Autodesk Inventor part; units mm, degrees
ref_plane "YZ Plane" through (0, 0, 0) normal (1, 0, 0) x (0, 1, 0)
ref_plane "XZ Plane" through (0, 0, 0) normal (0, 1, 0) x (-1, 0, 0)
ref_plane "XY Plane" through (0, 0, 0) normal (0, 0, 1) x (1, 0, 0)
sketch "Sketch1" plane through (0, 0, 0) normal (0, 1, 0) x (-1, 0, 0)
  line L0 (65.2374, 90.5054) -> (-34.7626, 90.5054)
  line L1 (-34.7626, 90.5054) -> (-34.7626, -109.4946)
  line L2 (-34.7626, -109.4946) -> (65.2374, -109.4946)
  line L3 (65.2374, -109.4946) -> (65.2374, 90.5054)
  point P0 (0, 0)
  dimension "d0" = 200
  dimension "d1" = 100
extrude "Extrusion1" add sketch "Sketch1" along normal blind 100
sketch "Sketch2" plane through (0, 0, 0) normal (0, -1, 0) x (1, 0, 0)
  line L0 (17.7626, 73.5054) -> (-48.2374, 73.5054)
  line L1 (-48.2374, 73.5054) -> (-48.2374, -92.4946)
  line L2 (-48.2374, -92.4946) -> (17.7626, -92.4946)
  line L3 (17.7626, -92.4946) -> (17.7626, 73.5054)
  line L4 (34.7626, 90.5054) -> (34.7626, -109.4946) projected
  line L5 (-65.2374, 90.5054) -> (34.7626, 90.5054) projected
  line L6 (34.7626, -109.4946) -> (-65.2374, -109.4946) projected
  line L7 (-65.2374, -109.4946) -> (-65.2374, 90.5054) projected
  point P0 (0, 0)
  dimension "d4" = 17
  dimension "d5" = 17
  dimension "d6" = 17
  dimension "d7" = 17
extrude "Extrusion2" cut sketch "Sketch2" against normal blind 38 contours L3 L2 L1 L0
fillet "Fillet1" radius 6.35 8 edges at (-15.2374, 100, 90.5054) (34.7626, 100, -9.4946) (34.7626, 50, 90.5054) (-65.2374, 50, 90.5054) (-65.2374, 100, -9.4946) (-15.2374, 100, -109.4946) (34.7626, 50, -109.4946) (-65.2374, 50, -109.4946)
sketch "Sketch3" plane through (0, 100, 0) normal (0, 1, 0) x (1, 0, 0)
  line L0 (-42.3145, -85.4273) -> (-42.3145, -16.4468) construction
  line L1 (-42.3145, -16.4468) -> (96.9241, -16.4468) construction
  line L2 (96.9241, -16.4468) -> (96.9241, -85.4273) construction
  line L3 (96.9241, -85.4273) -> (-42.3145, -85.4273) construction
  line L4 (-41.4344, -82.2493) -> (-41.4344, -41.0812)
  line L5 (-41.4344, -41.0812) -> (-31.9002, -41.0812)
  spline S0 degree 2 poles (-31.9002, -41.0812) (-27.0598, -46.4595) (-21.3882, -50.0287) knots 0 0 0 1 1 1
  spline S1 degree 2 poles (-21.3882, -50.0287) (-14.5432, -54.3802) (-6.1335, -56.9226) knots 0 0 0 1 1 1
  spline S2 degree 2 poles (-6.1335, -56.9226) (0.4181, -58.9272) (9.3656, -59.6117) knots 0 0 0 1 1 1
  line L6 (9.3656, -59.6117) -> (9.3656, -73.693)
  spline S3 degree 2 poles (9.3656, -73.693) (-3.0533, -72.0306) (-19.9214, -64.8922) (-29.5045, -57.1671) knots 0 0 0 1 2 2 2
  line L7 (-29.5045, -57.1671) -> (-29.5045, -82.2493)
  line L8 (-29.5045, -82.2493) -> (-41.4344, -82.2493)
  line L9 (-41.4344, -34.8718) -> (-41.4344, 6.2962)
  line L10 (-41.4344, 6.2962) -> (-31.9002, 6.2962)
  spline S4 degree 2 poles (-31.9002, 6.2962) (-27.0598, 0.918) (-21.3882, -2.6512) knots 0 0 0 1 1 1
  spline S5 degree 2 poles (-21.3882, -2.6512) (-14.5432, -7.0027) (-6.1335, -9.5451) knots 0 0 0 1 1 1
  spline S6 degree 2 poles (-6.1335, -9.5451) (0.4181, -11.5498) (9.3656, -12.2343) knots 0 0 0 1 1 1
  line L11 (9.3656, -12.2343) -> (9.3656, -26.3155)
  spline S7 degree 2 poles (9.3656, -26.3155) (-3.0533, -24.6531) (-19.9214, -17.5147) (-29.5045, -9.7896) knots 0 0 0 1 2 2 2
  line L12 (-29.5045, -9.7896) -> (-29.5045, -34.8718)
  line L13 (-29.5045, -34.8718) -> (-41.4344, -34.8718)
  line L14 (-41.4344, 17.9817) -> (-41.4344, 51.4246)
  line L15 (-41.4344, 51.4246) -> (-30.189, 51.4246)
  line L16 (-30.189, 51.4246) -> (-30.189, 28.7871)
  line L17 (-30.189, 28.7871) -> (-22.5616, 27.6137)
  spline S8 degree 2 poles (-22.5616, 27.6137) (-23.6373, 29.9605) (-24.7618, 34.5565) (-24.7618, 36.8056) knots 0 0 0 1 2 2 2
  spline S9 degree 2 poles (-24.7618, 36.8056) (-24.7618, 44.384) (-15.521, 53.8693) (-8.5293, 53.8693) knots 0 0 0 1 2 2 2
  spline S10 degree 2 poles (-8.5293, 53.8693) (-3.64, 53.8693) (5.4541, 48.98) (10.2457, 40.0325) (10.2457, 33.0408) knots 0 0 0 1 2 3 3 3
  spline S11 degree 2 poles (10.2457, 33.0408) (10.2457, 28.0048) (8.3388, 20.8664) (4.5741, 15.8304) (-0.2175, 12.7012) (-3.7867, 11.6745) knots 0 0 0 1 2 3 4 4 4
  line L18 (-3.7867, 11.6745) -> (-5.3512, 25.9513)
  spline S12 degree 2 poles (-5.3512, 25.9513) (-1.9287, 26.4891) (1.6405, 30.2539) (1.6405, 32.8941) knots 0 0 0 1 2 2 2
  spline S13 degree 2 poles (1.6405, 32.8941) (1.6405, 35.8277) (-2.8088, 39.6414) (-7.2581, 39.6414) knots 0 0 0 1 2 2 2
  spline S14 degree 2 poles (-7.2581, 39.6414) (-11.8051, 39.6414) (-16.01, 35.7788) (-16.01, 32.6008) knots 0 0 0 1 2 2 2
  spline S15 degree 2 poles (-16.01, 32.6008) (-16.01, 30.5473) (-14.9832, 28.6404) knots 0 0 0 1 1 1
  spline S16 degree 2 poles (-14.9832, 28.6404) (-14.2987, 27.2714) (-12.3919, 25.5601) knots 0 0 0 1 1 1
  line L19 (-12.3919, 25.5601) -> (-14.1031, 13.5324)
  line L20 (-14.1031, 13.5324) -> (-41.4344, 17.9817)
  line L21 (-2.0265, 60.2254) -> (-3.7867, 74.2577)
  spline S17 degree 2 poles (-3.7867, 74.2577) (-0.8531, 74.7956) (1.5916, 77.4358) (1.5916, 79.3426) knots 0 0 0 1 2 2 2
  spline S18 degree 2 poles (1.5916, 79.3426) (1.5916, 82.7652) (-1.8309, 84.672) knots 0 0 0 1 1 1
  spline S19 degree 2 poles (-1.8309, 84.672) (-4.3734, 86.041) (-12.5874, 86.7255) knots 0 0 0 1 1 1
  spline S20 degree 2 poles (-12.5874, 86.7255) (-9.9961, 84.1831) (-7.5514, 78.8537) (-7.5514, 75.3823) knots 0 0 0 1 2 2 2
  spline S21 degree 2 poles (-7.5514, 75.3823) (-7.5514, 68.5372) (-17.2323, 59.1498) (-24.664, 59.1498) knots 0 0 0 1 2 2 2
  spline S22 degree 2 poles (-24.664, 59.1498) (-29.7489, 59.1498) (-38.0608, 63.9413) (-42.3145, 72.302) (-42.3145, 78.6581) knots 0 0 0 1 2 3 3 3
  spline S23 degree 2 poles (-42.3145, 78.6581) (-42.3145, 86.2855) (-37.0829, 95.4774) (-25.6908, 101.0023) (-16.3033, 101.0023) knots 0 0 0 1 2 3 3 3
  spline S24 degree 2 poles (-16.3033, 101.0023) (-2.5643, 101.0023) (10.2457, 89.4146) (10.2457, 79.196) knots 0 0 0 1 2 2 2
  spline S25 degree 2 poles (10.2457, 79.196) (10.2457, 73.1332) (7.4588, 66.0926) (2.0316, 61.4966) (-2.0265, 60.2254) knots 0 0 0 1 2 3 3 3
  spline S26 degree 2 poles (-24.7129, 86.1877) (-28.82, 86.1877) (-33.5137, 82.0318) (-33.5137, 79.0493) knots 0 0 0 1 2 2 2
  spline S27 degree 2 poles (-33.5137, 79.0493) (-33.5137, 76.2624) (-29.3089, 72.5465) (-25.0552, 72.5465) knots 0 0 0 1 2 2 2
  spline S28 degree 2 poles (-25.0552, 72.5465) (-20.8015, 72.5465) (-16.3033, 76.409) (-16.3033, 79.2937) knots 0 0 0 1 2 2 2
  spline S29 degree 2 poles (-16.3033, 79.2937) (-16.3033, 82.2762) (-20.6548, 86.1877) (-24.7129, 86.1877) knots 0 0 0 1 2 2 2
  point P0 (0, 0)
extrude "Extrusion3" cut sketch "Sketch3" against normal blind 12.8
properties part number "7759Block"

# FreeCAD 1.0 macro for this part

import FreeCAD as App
import Part
import Sketcher
from FreeCAD import Vector
Q = App.Units.Quantity


def edges_at(feature, points):
    """Names of the edges that pass closest to the given points."""
    edges = feature.Shape.Edges
    near = lambda p: min(range(len(edges)), key=lambda i: edges[i].distToShape(Part.Vertex(*p))[0])
    return sorted({f"Edge{near(p) + 1}" for p in points})


def add_polygon(sketch, points):
    """Adds a closed chain of lines whose ends are joined by coincident constraints."""
    first, n = sketch.GeometryCount, len(points)
    for a, b in zip(points, points[1:] + points[:1]):
        sketch.addGeometry(Part.LineSegment(App.Vector(*a, 0), App.Vector(*b, 0)), False)
    for i in range(n):
        sketch.addConstraint(Sketcher.Constraint("Coincident", first + i, 2, first + (i + 1) % n, 1))

doc = App.newDocument("Part")
body = doc.addObject("PartDesign::Body", "Body")

sketch1 = doc.addObject("Sketcher::SketchObject", "Sketch")
body.addObject(sketch1)
sketch1.AttachmentSupport = (doc.XZ_Plane, [""])
sketch1.MapMode = "FlatFace"
add_polygon(sketch1, [(-65.2374, -109.4946), (-65.2374, 90.5054), (34.7626, 90.5054), (34.7626, -109.4946)])
sketch1.addConstraint(Sketcher.Constraint("Vertical", 0))
sketch1.addConstraint(Sketcher.Constraint("Horizontal", 1))
sketch1.addConstraint(Sketcher.Constraint("Vertical", 2))
sketch1.addConstraint(Sketcher.Constraint("Horizontal", 3))
sketch1.addConstraint(Sketcher.Constraint("DistanceX", 1, 1, 1, 2, Q("100 mm")))
sketch1.addConstraint(Sketcher.Constraint("DistanceY", 0, 1, 0, 2, Q("200 mm")))
sketch1.addConstraint(Sketcher.Constraint("DistanceX", 0, 2, -1, 1, Q("65.2374 mm")))
sketch1.addConstraint(Sketcher.Constraint("DistanceY", -1, 1, 0, 2, Q("90.5054 mm")))
pad1 = doc.addObject("PartDesign::Pad", "Pad")
body.addObject(pad1)
pad1.Profile = sketch1
pad1.Length = 100
pad1.Reversed = True

sketch2 = doc.addObject("Sketcher::SketchObject", "Sketch001")
body.addObject(sketch2)
sketch2.AttachmentSupport = (doc.XZ_Plane, [""])
sketch2.MapMode = "FlatFace"
add_polygon(sketch2, [(17.7626, -92.4946), (17.7626, 73.5054), (-48.2374, 73.5054), (-48.2374, -92.4946)])
sketch2.addConstraint(Sketcher.Constraint("Vertical", 0))
sketch2.addConstraint(Sketcher.Constraint("Horizontal", 1))
sketch2.addConstraint(Sketcher.Constraint("Vertical", 2))
sketch2.addConstraint(Sketcher.Constraint("Horizontal", 3))
sketch2.addConstraint(Sketcher.Constraint("DistanceX", 1, 2, 1, 1, Q("66 mm")))
sketch2.addConstraint(Sketcher.Constraint("DistanceY", 0, 1, 0, 2, Q("166 mm")))
sketch2.addConstraint(Sketcher.Constraint("DistanceX", -1, 1, 0, 2, Q("17.7626 mm")))
sketch2.addConstraint(Sketcher.Constraint("DistanceY", -1, 1, 0, 2, Q("73.5054 mm")))
pocket1 = doc.addObject("PartDesign::Pocket", "Pocket")
body.addObject(pocket1)
pocket1.Profile = sketch2
pocket1.Length = 38
doc.recompute()

fillet = doc.addObject("PartDesign::Fillet", "Fillet")
body.addObject(fillet)
fillet.Base = (pocket1, edges_at(pocket1, [
    (-15.237, 100, 90.505),
    (34.763, 100, -9.495),
    (34.763, 50, 90.505),
    (-65.237, 50, 90.505),
    (-65.237, 100, -9.495),
    (-15.237, 100, -109.495),
    (34.763, 50, -109.495),
    (-65.237, 50, -109.495),
]))
fillet.Radius = 6.35

sketch3 = doc.addObject("Sketcher::SketchObject", "Sketch002")
body.addObject(sketch3)
sketch3.AttachmentSupport = (doc.XZ_Plane, [""])
sketch3.MapMode = "FlatFace"
sketch3.AttachmentOffset = App.Placement(Vector(0, 0, -100), App.Rotation())
sketch3.addGeometry(Part.LineSegment(Vector(-41.4344, 41.0812, 0), Vector(-41.4344, 82.2493, 0)), False)
sketch3.addGeometry(Part.LineSegment(Vector(-41.4344, 82.2493, 0), Vector(-29.5045, 82.2493, 0)), False)
sketch3.addGeometry(Part.LineSegment(Vector(-29.5045, 82.2493, 0), Vector(-29.5045, 57.1671, 0)), False)
sketch3.addGeometry(Part.BSplineCurve([Vector(9.3656, 73.693, 0), Vector(-3.0533, 72.0306, 0), Vector(-19.9214, 64.8922, 0), Vector(-29.5045, 57.1671, 0)], [3, 1, 3], [0, 1, 2], False, 2, [1, 1, 1, 1], False), False)
sketch3.addGeometry(Part.LineSegment(Vector(9.3656, 73.693, 0), Vector(9.3656, 59.6117, 0)), False)
sketch3.addGeometry(Part.BSplineCurve([Vector(-6.1335, 56.9226, 0), Vector(0.4181, 58.9272, 0), Vector(9.3656, 59.6117, 0)], [3, 3], [0, 1], False, 2, [1, 1, 1], False), False)
sketch3.addGeometry(Part.BSplineCurve([Vector(-21.3882, 50.0287, 0), Vector(-14.5432, 54.3802, 0), Vector(-6.1335, 56.9226, 0)], [3, 3], [0, 1], False, 2, [1, 1, 1], False), False)
sketch3.addGeometry(Part.BSplineCurve([Vector(-31.9002, 41.0812, 0), Vector(-27.0598, 46.4595, 0), Vector(-21.3882, 50.0287, 0)], [3, 3], [0, 1], False, 2, [1, 1, 1], False), False)
sketch3.addGeometry(Part.LineSegment(Vector(-31.9002, 41.0812, 0), Vector(-41.4344, 41.0812, 0)), False)
sketch3.addGeometry(Part.LineSegment(Vector(-41.4344, -6.2962, 0), Vector(-41.4344, 34.8718, 0)), False)
sketch3.addGeometry(Part.LineSegment(Vector(-41.4344, 34.8718, 0), Vector(-29.5045, 34.8718, 0)), False)
sketch3.addGeometry(Part.LineSegment(Vector(-29.5045, 34.8718, 0), Vector(-29.5045, 9.7896, 0)), False)
sketch3.addGeometry(Part.BSplineCurve([Vector(9.3656, 26.3155, 0), Vector(-3.0533, 24.6531, 0), Vector(-19.9214, 17.5147, 0), Vector(-29.5045, 9.7896, 0)], [3, 1, 3], [0, 1, 2], False, 2, [1, 1, 1, 1], False), False)
sketch3.addGeometry(Part.LineSegment(Vector(9.3656, 26.3155, 0), Vector(9.3656, 12.2343, 0)), False)
sketch3.addGeometry(Part.BSplineCurve([Vector(-6.1335, 9.5451, 0), Vector(0.4181, 11.5498, 0), Vector(9.3656, 12.2343, 0)], [3, 3], [0, 1], False, 2, [1, 1, 1], False), False)
sketch3.addGeometry(Part.BSplineCurve([Vector(-21.3882, 2.6512, 0), Vector(-14.5432, 7.0027, 0), Vector(-6.1335, 9.5451, 0)], [3, 3], [0, 1], False, 2, [1, 1, 1], False), False)
sketch3.addGeometry(Part.BSplineCurve([Vector(-31.9002, -6.2962, 0), Vector(-27.0598, -0.918, 0), Vector(-21.3882, 2.6512, 0)], [3, 3], [0, 1], False, 2, [1, 1, 1], False), False)
sketch3.addGeometry(Part.LineSegment(Vector(-31.9002, -6.2962, 0), Vector(-41.4344, -6.2962, 0)), False)
sketch3.addGeometry(Part.LineSegment(Vector(-41.4344, -51.4246, 0), Vector(-41.4344, -17.9817, 0)), False)
sketch3.addGeometry(Part.LineSegment(Vector(-41.4344, -17.9817, 0), Vector(-14.1031, -13.5324, 0)), False)
sketch3.addGeometry(Part.LineSegment(Vector(-14.1031, -13.5324, 0), Vector(-12.3919, -25.5601, 0)), False)
sketch3.addGeometry(Part.BSplineCurve([Vector(-14.9832, -28.6404, 0), Vector(-14.2987, -27.2714, 0), Vector(-12.3919, -25.5601, 0)], [3, 3], [0, 1], False, 2, [1, 1, 1], False), False)
sketch3.addGeometry(Part.BSplineCurve([Vector(-16.01, -32.6008, 0), Vector(-16.01, -30.5473, 0), Vector(-14.9832, -28.6404, 0)], [3, 3], [0, 1], False, 2, [1, 1, 1], False), False)
sketch3.addGeometry(Part.BSplineCurve([Vector(-7.2581, -39.6414, 0), Vector(-11.8051, -39.6414, 0), Vector(-16.01, -35.7788, 0), Vector(-16.01, -32.6008, 0)], [3, 1, 3], [0, 1, 2], False, 2, [1, 1, 1, 1], False), False)
sketch3.addGeometry(Part.BSplineCurve([Vector(1.6405, -32.8941, 0), Vector(1.6405, -35.8277, 0), Vector(-2.8088, -39.6414, 0), Vector(-7.2581, -39.6414, 0)], [3, 1, 3], [0, 1, 2], False, 2, [1, 1, 1, 1], False), False)
sketch3.addGeometry(Part.BSplineCurve([Vector(-5.3512, -25.9513, 0), Vector(-1.9287, -26.4891, 0), Vector(1.6405, -30.2539, 0), Vector(1.6405, -32.8941, 0)], [3, 1, 3], [0, 1, 2], False, 2, [1, 1, 1, 1], False), False)
sketch3.addGeometry(Part.LineSegment(Vector(-5.3512, -25.9513, 0), Vector(-3.7867, -11.6745, 0)), False)
sketch3.addGeometry(Part.BSplineCurve([Vector(10.2457, -33.0408, 0), Vector(10.2457, -28.0048, 0), Vector(8.3388, -20.8664, 0), Vector(4.5741, -15.8304, 0), Vector(-0.2175, -12.7012, 0), Vector(-3.7867, -11.6745, 0)], [3, 1, 1, 1, 3], [0, 1, 2, 3, 4], False, 2, [1, 1, 1, 1, 1, 1], False), False)
sketch3.addGeometry(Part.BSplineCurve([Vector(-8.5293, -53.8693, 0), Vector(-3.64, -53.8693, 0), Vector(5.4541, -48.98, 0), Vector(10.2457, -40.0325, 0), Vector(10.2457, -33.0408, 0)], [3, 1, 1, 3], [0, 1, 2, 3], False, 2, [1, 1, 1, 1, 1], False), False)
sketch3.addGeometry(Part.BSplineCurve([Vector(-24.7618, -36.8056, 0), Vector(-24.7618, -44.384, 0), Vector(-15.521, -53.8693, 0), Vector(-8.5293, -53.8693, 0)], [3, 1, 3], [0, 1, 2], False, 2, [1, 1, 1, 1], False), False)
sketch3.addGeometry(Part.BSplineCurve([Vector(-22.5616, -27.6137, 0), Vector(-23.6373, -29.9605, 0), Vector(-24.7618, -34.5565, 0), Vector(-24.7618, -36.8056, 0)], [3, 1, 3], [0, 1, 2], False, 2, [1, 1, 1, 1], False), False)
sketch3.addGeometry(Part.LineSegment(Vector(-22.5616, -27.6137, 0), Vector(-30.189, -28.7871, 0)), False)
sketch3.addGeometry(Part.LineSegment(Vector(-30.189, -28.7871, 0), Vector(-30.189, -51.4246, 0)), False)
sketch3.addGeometry(Part.LineSegment(Vector(-30.189, -51.4246, 0), Vector(-41.4344, -51.4246, 0)), False)
sketch3.addGeometry(Part.LineSegment(Vector(-3.7867, -74.2577, 0), Vector(-2.0265, -60.2254, 0)), False)
sketch3.addGeometry(Part.BSplineCurve([Vector(10.2457, -79.196, 0), Vector(10.2457, -73.1332, 0), Vector(7.4588, -66.0926, 0), Vector(2.0316, -61.4966, 0), Vector(-2.0265, -60.2254, 0)], [3, 1, 1, 3], [0, 1, 2, 3], False, 2, [1, 1, 1, 1, 1], False), False)
sketch3.addGeometry(Part.BSplineCurve([Vector(-16.3033, -101.0023, 0), Vector(-2.5643, -101.0023, 0), Vector(10.2457, -89.4146, 0), Vector(10.2457, -79.196, 0)], [3, 1, 3], [0, 1, 2], False, 2, [1, 1, 1, 1], False), False)
sketch3.addGeometry(Part.BSplineCurve([Vector(-42.3145, -78.6581, 0), Vector(-42.3145, -86.2855, 0), Vector(-37.0829, -95.4774, 0), Vector(-25.6908, -101.0023, 0), Vector(-16.3033, -101.0023, 0)], [3, 1, 1, 3], [0, 1, 2, 3], False, 2, [1, 1, 1, 1, 1], False), False)
sketch3.addGeometry(Part.BSplineCurve([Vector(-24.664, -59.1498, 0), Vector(-29.7489, -59.1498, 0), Vector(-38.0608, -63.9413, 0), Vector(-42.3145, -72.302, 0), Vector(-42.3145, -78.6581, 0)], [3, 1, 1, 3], [0, 1, 2, 3], False, 2, [1, 1, 1, 1, 1], False), False)
sketch3.addGeometry(Part.BSplineCurve([Vector(-7.5514, -75.3823, 0), Vector(-7.5514, -68.5372, 0), Vector(-17.2323, -59.1498, 0), Vector(-24.664, -59.1498, 0)], [3, 1, 3], [0, 1, 2], False, 2, [1, 1, 1, 1], False), False)
sketch3.addGeometry(Part.BSplineCurve([Vector(-12.5874, -86.7255, 0), Vector(-9.9961, -84.1831, 0), Vector(-7.5514, -78.8537, 0), Vector(-7.5514, -75.3823, 0)], [3, 1, 3], [0, 1, 2], False, 2, [1, 1, 1, 1], False), False)
sketch3.addGeometry(Part.BSplineCurve([Vector(-1.8309, -84.672, 0), Vector(-4.3734, -86.041, 0), Vector(-12.5874, -86.7255, 0)], [3, 3], [0, 1], False, 2, [1, 1, 1], False), False)
sketch3.addGeometry(Part.BSplineCurve([Vector(1.5916, -79.3426, 0), Vector(1.5916, -82.7652, 0), Vector(-1.8309, -84.672, 0)], [3, 3], [0, 1], False, 2, [1, 1, 1], False), False)
sketch3.addGeometry(Part.BSplineCurve([Vector(-3.7867, -74.2577, 0), Vector(-0.8531, -74.7956, 0), Vector(1.5916, -77.4358, 0), Vector(1.5916, -79.3426, 0)], [3, 1, 3], [0, 1, 2], False, 2, [1, 1, 1, 1], False), False)
sketch3.addGeometry(Part.BSplineCurve([Vector(-24.7129, -86.1877, 0), Vector(-28.82, -86.1877, 0), Vector(-33.5137, -82.0318, 0), Vector(-33.5137, -79.0493, 0)], [3, 1, 3], [0, 1, 2], False, 2, [1, 1, 1, 1], False), False)
sketch3.addGeometry(Part.BSplineCurve([Vector(-16.3033, -79.2937, 0), Vector(-16.3033, -82.2762, 0), Vector(-20.6548, -86.1877, 0), Vector(-24.7129, -86.1877, 0)], [3, 1, 3], [0, 1, 2], False, 2, [1, 1, 1, 1], False), False)
sketch3.addGeometry(Part.BSplineCurve([Vector(-25.0552, -72.5465, 0), Vector(-20.8015, -72.5465, 0), Vector(-16.3033, -76.409, 0), Vector(-16.3033, -79.2937, 0)], [3, 1, 3], [0, 1, 2], False, 2, [1, 1, 1, 1], False), False)
sketch3.addGeometry(Part.BSplineCurve([Vector(-33.5137, -79.0493, 0), Vector(-33.5137, -76.2624, 0), Vector(-29.3089, -72.5465, 0), Vector(-25.0552, -72.5465, 0)], [3, 1, 3], [0, 1, 2], False, 2, [1, 1, 1, 1], False), False)
sketch3.addConstraint(Sketcher.Constraint("Block", 3))
sketch3.addConstraint(Sketcher.Constraint("Block", 5))
sketch3.addConstraint(Sketcher.Constraint("Block", 6))
sketch3.addConstraint(Sketcher.Constraint("Block", 7))
sketch3.addConstraint(Sketcher.Constraint("Block", 12))
sketch3.addConstraint(Sketcher.Constraint("Block", 14))
sketch3.addConstraint(Sketcher.Constraint("Block", 15))
sketch3.addConstraint(Sketcher.Constraint("Block", 16))
sketch3.addConstraint(Sketcher.Constraint("Block", 21))
sketch3.addConstraint(Sketcher.Constraint("Block", 22))
sketch3.addConstraint(Sketcher.Constraint("Block", 23))
sketch3.addConstraint(Sketcher.Constraint("Block", 24))
sketch3.addConstraint(Sketcher.Constraint("Block", 25))
sketch3.addConstraint(Sketcher.Constraint("Block", 27))
sketch3.addConstraint(Sketcher.Constraint("Block", 28))
sketch3.addConstraint(Sketcher.Constraint("Block", 29))
sketch3.addConstraint(Sketcher.Constraint("Block", 30))
sketch3.addConstraint(Sketcher.Constraint("Block", 35))
sketch3.addConstraint(Sketcher.Constraint("Block", 36))
sketch3.addConstraint(Sketcher.Constraint("Block", 37))
sketch3.addConstraint(Sketcher.Constraint("Block", 38))
sketch3.addConstraint(Sketcher.Constraint("Block", 39))
sketch3.addConstraint(Sketcher.Constraint("Block", 40))
sketch3.addConstraint(Sketcher.Constraint("Block", 41))
sketch3.addConstraint(Sketcher.Constraint("Block", 42))
sketch3.addConstraint(Sketcher.Constraint("Block", 43))
sketch3.addConstraint(Sketcher.Constraint("Block", 44))
sketch3.addConstraint(Sketcher.Constraint("Block", 45))
sketch3.addConstraint(Sketcher.Constraint("Block", 46))
sketch3.addConstraint(Sketcher.Constraint("Block", 47))
sketch3.addConstraint(Sketcher.Constraint("Coincident", 0, 2, 1, 1))
sketch3.addConstraint(Sketcher.Constraint("Coincident", 1, 2, 2, 1))
sketch3.addConstraint(Sketcher.Constraint("Coincident", 2, 2, 3, 2))
sketch3.addConstraint(Sketcher.Constraint("Coincident", 3, 1, 4, 1))
sketch3.addConstraint(Sketcher.Constraint("Coincident", 4, 2, 5, 2))
sketch3.addConstraint(Sketcher.Constraint("Coincident", 7, 1, 8, 1))
sketch3.addConstraint(Sketcher.Constraint("Coincident", 8, 2, 0, 1))
sketch3.addConstraint(Sketcher.Constraint("Coincident", 9, 2, 10, 1))
sketch3.addConstraint(Sketcher.Constraint("Coincident", 10, 2, 11, 1))
sketch3.addConstraint(Sketcher.Constraint("Coincident", 11, 2, 12, 2))
sketch3.addConstraint(Sketcher.Constraint("Coincident", 12, 1, 13, 1))
sketch3.addConstraint(Sketcher.Constraint("Coincident", 13, 2, 14, 2))
sketch3.addConstraint(Sketcher.Constraint("Coincident", 16, 1, 17, 1))
sketch3.addConstraint(Sketcher.Constraint("Coincident", 17, 2, 9, 1))
sketch3.addConstraint(Sketcher.Constraint("Coincident", 18, 2, 19, 1))
sketch3.addConstraint(Sketcher.Constraint("Coincident", 19, 2, 20, 1))
sketch3.addConstraint(Sketcher.Constraint("Coincident", 20, 2, 21, 2))
sketch3.addConstraint(Sketcher.Constraint("Coincident", 25, 1, 26, 1))
sketch3.addConstraint(Sketcher.Constraint("Coincident", 26, 2, 27, 2))
sketch3.addConstraint(Sketcher.Constraint("Coincident", 30, 1, 31, 1))
sketch3.addConstraint(Sketcher.Constraint("Coincident", 31, 2, 32, 1))
sketch3.addConstraint(Sketcher.Constraint("Coincident", 32, 2, 33, 1))
sketch3.addConstraint(Sketcher.Constraint("Coincident", 33, 2, 18, 1))
sketch3.addConstraint(Sketcher.Constraint("Coincident", 34, 2, 35, 2))
sketch3.addConstraint(Sketcher.Constraint("Coincident", 43, 1, 34, 1))
sketch3.addConstraint(Sketcher.Constraint("Vertical", 0))
sketch3.addConstraint(Sketcher.Constraint("Horizontal", 1))
sketch3.addConstraint(Sketcher.Constraint("Vertical", 2))
sketch3.addConstraint(Sketcher.Constraint("Horizontal", 8))
sketch3.addConstraint(Sketcher.Constraint("Vertical", 9))
sketch3.addConstraint(Sketcher.Constraint("Horizontal", 10))
sketch3.addConstraint(Sketcher.Constraint("Vertical", 11))
sketch3.addConstraint(Sketcher.Constraint("Horizontal", 17))
sketch3.addConstraint(Sketcher.Constraint("Vertical", 18))
sketch3.addConstraint(Sketcher.Constraint("Vertical", 32))
sketch3.addConstraint(Sketcher.Constraint("Horizontal", 33))
sketch3.addConstraint(Sketcher.Constraint("Vertical", 8, 2, 9, 2))
sketch3.addConstraint(Sketcher.Constraint("Vertical", 17, 2, 18, 2))
sketch3.addConstraint(Sketcher.Constraint("Equal", 0, 9))
sketch3.addConstraint(Sketcher.Constraint("DistanceX", 1, 1, 1, 2, Q("11.93 mm")))
sketch3.addConstraint(Sketcher.Constraint("DistanceY", 0, 1, 0, 2, Q("41.168 mm")))
sketch3.addConstraint(Sketcher.Constraint("DistanceY", 18, 1, 18, 2, Q("33.443 mm")))
sketch3.addConstraint(Sketcher.Constraint("Distance", 19, Q("27.691 mm")))
sketch3.addConstraint(Sketcher.Constraint("DistanceX", 33, 2, 33, 1, Q("11.2454 mm")))
sketch3.addConstraint(Sketcher.Constraint("DistanceY", 32, 2, 32, 1, Q("22.6375 mm")))
sketch3.addConstraint(Sketcher.Constraint("DistanceX", 19, 2, -1, 1, Q("14.103 mm")))
sketch3.addConstraint(Sketcher.Constraint("DistanceY", 31, 2, -1, 1, Q("28.787 mm")))
pocket2 = doc.addObject("PartDesign::Pocket", "Pocket001")
body.addObject(pocket2)
pocket2.Profile = sketch3
pocket2.Length = 12.8
pocket2.Reversed = True

doc.recompute()
